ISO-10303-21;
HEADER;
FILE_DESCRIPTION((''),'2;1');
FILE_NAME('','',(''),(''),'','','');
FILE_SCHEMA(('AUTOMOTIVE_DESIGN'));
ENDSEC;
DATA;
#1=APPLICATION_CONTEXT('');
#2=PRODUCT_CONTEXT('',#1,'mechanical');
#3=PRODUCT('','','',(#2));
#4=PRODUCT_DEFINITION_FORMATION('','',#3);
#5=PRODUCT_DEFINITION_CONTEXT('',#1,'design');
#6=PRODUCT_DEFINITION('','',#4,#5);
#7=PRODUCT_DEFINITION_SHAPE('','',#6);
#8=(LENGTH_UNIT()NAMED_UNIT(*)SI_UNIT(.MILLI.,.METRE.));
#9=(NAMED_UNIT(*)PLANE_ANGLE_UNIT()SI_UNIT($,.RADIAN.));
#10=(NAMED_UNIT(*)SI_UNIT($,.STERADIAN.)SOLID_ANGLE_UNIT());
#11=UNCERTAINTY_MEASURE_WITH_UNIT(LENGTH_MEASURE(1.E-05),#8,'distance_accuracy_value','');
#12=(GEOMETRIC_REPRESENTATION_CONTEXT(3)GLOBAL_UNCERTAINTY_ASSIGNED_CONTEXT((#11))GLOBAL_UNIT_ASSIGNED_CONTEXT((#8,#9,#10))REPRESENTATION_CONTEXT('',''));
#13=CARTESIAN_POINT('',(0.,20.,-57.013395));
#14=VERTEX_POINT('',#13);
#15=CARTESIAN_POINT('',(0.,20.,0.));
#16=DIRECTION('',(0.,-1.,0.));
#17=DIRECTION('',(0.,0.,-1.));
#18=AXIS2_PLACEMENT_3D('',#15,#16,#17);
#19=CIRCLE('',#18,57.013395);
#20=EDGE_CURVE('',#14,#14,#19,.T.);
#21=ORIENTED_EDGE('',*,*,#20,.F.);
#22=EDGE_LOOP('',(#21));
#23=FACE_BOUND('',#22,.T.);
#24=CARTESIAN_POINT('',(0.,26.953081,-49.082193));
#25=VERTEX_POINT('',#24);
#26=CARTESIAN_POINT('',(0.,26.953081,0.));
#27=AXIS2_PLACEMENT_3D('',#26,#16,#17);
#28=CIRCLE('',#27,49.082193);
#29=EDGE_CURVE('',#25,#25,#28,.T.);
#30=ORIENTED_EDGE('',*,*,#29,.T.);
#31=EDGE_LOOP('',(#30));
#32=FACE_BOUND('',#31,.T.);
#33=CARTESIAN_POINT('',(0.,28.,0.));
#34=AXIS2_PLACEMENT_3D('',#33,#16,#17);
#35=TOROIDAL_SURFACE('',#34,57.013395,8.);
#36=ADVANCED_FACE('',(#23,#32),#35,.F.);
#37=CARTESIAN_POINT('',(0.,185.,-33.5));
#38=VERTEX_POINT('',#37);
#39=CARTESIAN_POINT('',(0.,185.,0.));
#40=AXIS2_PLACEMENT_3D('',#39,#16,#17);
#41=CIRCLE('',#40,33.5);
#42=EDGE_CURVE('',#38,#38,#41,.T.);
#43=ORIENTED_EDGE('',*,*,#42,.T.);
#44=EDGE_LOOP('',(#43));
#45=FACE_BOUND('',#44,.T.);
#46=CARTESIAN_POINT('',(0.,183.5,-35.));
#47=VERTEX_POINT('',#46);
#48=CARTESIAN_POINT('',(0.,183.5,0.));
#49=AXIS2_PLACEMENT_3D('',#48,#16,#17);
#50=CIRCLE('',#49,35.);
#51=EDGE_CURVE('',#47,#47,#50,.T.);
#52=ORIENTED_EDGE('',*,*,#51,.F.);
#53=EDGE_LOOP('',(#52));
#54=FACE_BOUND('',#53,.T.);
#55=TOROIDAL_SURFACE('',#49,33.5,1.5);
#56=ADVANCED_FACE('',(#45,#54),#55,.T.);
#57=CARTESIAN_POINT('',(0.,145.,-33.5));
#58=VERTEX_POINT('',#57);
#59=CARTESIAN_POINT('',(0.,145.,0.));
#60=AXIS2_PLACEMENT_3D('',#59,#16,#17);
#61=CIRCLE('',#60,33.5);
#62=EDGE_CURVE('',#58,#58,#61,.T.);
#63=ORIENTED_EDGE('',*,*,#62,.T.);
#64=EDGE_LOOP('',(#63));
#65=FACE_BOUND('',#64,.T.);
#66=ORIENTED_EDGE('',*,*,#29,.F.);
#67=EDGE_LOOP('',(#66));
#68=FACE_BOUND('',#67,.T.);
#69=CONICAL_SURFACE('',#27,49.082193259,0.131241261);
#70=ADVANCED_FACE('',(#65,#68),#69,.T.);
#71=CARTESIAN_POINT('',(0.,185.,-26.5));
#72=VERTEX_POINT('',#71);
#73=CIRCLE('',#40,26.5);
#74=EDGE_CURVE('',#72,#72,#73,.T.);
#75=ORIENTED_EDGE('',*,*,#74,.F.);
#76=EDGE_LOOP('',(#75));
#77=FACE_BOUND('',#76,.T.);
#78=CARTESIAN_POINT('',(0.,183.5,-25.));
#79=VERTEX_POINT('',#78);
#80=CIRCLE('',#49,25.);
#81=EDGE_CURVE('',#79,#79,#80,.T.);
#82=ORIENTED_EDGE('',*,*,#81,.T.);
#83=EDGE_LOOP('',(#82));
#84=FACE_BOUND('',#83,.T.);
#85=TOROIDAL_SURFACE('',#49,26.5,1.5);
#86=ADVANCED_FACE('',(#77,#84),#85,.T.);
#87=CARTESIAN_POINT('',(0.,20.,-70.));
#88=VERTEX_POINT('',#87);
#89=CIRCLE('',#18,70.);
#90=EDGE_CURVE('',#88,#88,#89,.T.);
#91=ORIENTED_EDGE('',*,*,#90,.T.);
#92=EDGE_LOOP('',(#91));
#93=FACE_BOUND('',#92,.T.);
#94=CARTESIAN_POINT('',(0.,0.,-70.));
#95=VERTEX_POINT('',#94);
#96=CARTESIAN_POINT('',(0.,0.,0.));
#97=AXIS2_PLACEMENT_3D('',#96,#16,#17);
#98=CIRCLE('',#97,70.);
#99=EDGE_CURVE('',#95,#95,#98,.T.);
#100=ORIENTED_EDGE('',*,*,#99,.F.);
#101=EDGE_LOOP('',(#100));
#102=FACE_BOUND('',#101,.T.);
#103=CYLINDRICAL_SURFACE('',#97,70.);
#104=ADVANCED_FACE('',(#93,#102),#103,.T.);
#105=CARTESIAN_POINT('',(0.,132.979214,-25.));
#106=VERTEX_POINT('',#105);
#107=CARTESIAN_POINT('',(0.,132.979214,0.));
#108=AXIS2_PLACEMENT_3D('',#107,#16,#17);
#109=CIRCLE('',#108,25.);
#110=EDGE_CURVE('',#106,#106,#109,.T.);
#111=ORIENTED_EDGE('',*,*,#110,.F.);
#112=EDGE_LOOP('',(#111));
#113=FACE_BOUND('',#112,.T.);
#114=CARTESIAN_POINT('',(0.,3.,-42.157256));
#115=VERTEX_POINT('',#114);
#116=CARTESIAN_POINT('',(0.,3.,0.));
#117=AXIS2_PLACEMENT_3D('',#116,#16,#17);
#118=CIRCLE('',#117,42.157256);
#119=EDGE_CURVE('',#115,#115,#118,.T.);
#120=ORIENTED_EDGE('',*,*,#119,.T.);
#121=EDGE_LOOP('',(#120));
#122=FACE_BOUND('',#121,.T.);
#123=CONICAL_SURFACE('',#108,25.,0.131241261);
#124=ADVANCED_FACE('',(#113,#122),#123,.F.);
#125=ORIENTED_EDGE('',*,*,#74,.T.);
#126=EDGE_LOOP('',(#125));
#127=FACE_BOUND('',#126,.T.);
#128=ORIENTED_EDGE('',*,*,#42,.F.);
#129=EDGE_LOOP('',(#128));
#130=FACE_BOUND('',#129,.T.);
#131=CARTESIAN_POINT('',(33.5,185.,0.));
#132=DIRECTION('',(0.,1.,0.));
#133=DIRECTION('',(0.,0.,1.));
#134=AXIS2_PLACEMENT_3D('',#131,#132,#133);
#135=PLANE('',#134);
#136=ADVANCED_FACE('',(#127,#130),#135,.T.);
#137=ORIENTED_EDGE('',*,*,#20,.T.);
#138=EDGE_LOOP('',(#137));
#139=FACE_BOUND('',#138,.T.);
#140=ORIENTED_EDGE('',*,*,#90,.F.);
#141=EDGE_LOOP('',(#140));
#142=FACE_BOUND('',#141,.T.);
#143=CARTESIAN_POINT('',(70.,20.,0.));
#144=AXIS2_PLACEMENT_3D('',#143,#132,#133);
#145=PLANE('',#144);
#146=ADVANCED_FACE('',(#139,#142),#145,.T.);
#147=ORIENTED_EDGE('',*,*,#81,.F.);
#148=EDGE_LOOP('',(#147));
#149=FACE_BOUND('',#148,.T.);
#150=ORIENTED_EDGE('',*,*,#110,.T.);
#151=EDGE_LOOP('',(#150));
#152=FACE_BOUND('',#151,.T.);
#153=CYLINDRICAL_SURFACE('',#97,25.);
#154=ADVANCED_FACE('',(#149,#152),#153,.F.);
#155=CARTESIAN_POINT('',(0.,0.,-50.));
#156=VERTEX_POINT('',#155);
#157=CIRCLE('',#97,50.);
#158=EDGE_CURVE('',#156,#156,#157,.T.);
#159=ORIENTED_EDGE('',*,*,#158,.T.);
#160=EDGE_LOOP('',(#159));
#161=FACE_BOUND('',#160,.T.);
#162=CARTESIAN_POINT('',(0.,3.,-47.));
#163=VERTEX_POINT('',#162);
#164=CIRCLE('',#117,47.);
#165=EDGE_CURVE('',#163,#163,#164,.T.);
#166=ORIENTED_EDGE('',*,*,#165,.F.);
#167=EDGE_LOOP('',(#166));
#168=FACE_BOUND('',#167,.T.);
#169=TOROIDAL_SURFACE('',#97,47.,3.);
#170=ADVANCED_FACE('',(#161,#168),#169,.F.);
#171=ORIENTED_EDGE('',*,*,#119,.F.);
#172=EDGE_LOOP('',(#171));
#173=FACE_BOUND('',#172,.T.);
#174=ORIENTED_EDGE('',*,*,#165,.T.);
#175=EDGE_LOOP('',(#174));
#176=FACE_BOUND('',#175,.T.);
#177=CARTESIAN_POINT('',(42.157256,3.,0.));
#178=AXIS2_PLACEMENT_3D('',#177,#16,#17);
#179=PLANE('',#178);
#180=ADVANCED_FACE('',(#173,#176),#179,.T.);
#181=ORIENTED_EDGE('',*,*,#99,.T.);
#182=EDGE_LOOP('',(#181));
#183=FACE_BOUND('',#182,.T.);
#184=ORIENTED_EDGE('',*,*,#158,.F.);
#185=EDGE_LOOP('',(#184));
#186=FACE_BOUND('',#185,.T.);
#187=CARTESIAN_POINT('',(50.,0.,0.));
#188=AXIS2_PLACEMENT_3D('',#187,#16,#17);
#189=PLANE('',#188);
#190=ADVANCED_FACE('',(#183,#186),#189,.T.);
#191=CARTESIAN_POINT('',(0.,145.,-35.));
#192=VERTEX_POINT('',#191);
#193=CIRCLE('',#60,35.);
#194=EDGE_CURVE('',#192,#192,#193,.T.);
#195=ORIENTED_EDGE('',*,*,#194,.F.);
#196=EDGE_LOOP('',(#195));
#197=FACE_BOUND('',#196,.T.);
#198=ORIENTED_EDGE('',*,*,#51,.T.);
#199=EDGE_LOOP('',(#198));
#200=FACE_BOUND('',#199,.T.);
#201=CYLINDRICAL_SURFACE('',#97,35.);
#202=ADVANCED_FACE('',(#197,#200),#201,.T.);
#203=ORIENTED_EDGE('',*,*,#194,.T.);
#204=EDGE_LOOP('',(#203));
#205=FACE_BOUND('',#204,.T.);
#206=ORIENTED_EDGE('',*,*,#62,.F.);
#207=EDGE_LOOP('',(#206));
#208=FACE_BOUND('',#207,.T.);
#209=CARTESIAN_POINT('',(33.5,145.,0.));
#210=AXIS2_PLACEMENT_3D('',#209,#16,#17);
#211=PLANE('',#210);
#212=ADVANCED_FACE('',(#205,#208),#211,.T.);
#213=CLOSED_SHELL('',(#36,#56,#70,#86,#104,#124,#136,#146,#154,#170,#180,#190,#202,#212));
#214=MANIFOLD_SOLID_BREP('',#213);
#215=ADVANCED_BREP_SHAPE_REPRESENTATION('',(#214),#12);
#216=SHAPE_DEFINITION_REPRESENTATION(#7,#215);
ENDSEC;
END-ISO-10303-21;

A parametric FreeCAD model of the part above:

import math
import FreeCAD as App
import Part
import Sketcher
from FreeCAD import Vector
Q = App.Units.Quantity

doc = App.newDocument("Part")
body = doc.addObject("PartDesign::Body", "Body")

sketch1 = doc.addObject("Sketcher::SketchObject", "Sketch")
body.addObject(sketch1)
sketch1.AttachmentSupport = (doc.XY_Plane, [""])
sketch1.MapMode = "FlatFace"
sketch1.addGeometry(Part.LineSegment(Vector(70, 0, 0), Vector(70, 20, 0)), False)
sketch1.addGeometry(Part.LineSegment(Vector(70, 20, 0), Vector(57.013395, 20, 0)), False)
sketch1.addGeometry(Part.ArcOfCircle(Part.Circle(Vector(57.013395, 28, 0), Vector(0, 0, 1), 8), math.radians(-172.48043), math.radians(-90)), False)
sketch1.addGeometry(Part.LineSegment(Vector(49.082193, 26.953081, 0), Vector(33.5, 145, 0)), False)
sketch1.addGeometry(Part.LineSegment(Vector(33.5, 145, 0), Vector(35, 145, 0)), False)
sketch1.addGeometry(Part.LineSegment(Vector(35, 145, 0), Vector(35, 183.5, 0)), False)
sketch1.addGeometry(Part.ArcOfCircle(Part.Circle(Vector(33.5, 183.5, 0), Vector(0, 0, 1), 1.5), math.radians(0), math.radians(90)), False)
sketch1.addGeometry(Part.LineSegment(Vector(33.5, 185, 0), Vector(26.5, 185, 0)), False)
sketch1.addGeometry(Part.ArcOfCircle(Part.Circle(Vector(26.5, 183.5, 0), Vector(0, 0, 1), 1.5), math.radians(90), math.radians(180)), False)
sketch1.addGeometry(Part.LineSegment(Vector(25, 183.5, 0), Vector(25, 132.979214, 0)), False)
sketch1.addGeometry(Part.LineSegment(Vector(25, 132.979214, 0), Vector(42.157256, 3, 0)), False)
sketch1.addGeometry(Part.LineSegment(Vector(42.157256, 3, 0), Vector(47, 3, 0)), False)
sketch1.addGeometry(Part.ArcOfCircle(Part.Circle(Vector(47, 0, 0), Vector(0, 0, 1), 3), math.radians(0), math.radians(90)), False)
sketch1.addGeometry(Part.LineSegment(Vector(50, 0, 0), Vector(70, 0, 0)), False)
sketch1.addConstraint(Sketcher.Constraint("Coincident", 0, 2, 1, 1))
sketch1.addConstraint(Sketcher.Constraint("Coincident", 1, 2, 2, 2))
sketch1.addConstraint(Sketcher.Constraint("Coincident", 2, 1, 3, 1))
sketch1.addConstraint(Sketcher.Constraint("Coincident", 3, 2, 4, 1))
sketch1.addConstraint(Sketcher.Constraint("Coincident", 4, 2, 5, 1))
sketch1.addConstraint(Sketcher.Constraint("Coincident", 5, 2, 6, 1))
sketch1.addConstraint(Sketcher.Constraint("Coincident", 6, 2, 7, 1))
sketch1.addConstraint(Sketcher.Constraint("Coincident", 7, 2, 8, 1))
sketch1.addConstraint(Sketcher.Constraint("Coincident", 8, 2, 9, 1))
sketch1.addConstraint(Sketcher.Constraint("Coincident", 9, 2, 10, 1))
sketch1.addConstraint(Sketcher.Constraint("Coincident", 10, 2, 11, 1))
sketch1.addConstraint(Sketcher.Constraint("Coincident", 11, 2, 12, 2))
sketch1.addConstraint(Sketcher.Constraint("Coincident", 12, 1, 13, 1))
sketch1.addConstraint(Sketcher.Constraint("Coincident", 13, 2, 0, 1))
sketch1.addConstraint(Sketcher.Constraint("Vertical", 0))
sketch1.addConstraint(Sketcher.Constraint("Horizontal", 1))
sketch1.addConstraint(Sketcher.Constraint("Horizontal", 4))
sketch1.addConstraint(Sketcher.Constraint("Vertical", 5))
sketch1.addConstraint(Sketcher.Constraint("Horizontal", 7))
sketch1.addConstraint(Sketcher.Constraint("Vertical", 9))
sketch1.addConstraint(Sketcher.Constraint("Horizontal", 11))
sketch1.addConstraint(Sketcher.Constraint("Horizontal", 13))
sketch1.addConstraint(Sketcher.Constraint("PointOnObject", 12, 3, -1))
sketch1.addConstraint(Sketcher.Constraint("PointOnObject", 12, 1, -1))
sketch1.addConstraint(Sketcher.Constraint("Radius", 2, Q("8 mm")))
sketch1.addConstraint(Sketcher.Constraint("Radius", 12, Q("3 mm")))
sketch1.addConstraint(Sketcher.Constraint("Radius", 6, Q("1.5 mm")))
sketch1.addConstraint(Sketcher.Constraint("Radius", 8, Q("1.5 mm")))
sketch1.addConstraint(Sketcher.Constraint("DistanceX", 7, 2, 7, 1, Q("7 mm")))
sketch1.addConstraint(Sketcher.Constraint("DistanceX", 13, 1, 13, 2, Q("20 mm")))
sketch1.addConstraint(Sketcher.Constraint("DistanceY", 0, 1, 0, 2, Q("20 mm")))
sketch1.addConstraint(Sketcher.Constraint("DistanceX", 4, 1, 4, 2, Q("1.5 mm")))
sketch1.addConstraint(Sketcher.Constraint("DistanceY", 5, 1, 5, 2, Q("38.5 mm")))
sketch1.addConstraint(Sketcher.Constraint("DistanceX", -1, 1, 12, 3, Q("47 mm")))
sketch1.addConstraint(Sketcher.Constraint("DistanceY", -1, 1, 3, 2, Q("145 mm")))
sketch1.addConstraint(Sketcher.Constraint("DistanceX", -1, 1, 4, 2, Q("35 mm")))
sketch1.addConstraint(Sketcher.Constraint("DistanceY", -1, 1, 6, 2, Q("185 mm")))
sketch1.addConstraint(Sketcher.Constraint("DistanceX", -1, 1, 8, 2, Q("25 mm")))
sketch1.addConstraint(Sketcher.Constraint("DistanceX", -1, 1, 11, 2, Q("47 mm")))
sketch1.addConstraint(Sketcher.Constraint("DistanceX", 8, 3, 6, 2, Q("7 mm")))
sketch1.addConstraint(Sketcher.Constraint("DistanceY", -1, 1, 8, 2, Q("183.5 mm")))
sketch1.addConstraint(Sketcher.Constraint("DistanceX", 2, 1, 2, 3, Q("7.931202 mm")))
sketch1.addConstraint(Sketcher.Constraint("DistanceX", 2, 1, 1, 2, Q("7.931202 mm")))
sketch1.addConstraint(Sketcher.Constraint("DistanceX", 1, 2, 1, 1, Q("12.986605 mm")))
sketch1.addConstraint(Sketcher.Constraint("DistanceX", 11, 1, 11, 2, Q("4.842744 mm")))
sketch1.addConstraint(Sketcher.Constraint("DistanceY", 9, 2, 9, 1, Q("50.520786 mm")))
revolution = doc.addObject("PartDesign::Revolution", "Revolution")
body.addObject(revolution)
revolution.Profile = sketch1
revolution.ReferenceAxis = (sketch1, ["V_Axis"])
revolution.Angle = 360

doc.recompute()
